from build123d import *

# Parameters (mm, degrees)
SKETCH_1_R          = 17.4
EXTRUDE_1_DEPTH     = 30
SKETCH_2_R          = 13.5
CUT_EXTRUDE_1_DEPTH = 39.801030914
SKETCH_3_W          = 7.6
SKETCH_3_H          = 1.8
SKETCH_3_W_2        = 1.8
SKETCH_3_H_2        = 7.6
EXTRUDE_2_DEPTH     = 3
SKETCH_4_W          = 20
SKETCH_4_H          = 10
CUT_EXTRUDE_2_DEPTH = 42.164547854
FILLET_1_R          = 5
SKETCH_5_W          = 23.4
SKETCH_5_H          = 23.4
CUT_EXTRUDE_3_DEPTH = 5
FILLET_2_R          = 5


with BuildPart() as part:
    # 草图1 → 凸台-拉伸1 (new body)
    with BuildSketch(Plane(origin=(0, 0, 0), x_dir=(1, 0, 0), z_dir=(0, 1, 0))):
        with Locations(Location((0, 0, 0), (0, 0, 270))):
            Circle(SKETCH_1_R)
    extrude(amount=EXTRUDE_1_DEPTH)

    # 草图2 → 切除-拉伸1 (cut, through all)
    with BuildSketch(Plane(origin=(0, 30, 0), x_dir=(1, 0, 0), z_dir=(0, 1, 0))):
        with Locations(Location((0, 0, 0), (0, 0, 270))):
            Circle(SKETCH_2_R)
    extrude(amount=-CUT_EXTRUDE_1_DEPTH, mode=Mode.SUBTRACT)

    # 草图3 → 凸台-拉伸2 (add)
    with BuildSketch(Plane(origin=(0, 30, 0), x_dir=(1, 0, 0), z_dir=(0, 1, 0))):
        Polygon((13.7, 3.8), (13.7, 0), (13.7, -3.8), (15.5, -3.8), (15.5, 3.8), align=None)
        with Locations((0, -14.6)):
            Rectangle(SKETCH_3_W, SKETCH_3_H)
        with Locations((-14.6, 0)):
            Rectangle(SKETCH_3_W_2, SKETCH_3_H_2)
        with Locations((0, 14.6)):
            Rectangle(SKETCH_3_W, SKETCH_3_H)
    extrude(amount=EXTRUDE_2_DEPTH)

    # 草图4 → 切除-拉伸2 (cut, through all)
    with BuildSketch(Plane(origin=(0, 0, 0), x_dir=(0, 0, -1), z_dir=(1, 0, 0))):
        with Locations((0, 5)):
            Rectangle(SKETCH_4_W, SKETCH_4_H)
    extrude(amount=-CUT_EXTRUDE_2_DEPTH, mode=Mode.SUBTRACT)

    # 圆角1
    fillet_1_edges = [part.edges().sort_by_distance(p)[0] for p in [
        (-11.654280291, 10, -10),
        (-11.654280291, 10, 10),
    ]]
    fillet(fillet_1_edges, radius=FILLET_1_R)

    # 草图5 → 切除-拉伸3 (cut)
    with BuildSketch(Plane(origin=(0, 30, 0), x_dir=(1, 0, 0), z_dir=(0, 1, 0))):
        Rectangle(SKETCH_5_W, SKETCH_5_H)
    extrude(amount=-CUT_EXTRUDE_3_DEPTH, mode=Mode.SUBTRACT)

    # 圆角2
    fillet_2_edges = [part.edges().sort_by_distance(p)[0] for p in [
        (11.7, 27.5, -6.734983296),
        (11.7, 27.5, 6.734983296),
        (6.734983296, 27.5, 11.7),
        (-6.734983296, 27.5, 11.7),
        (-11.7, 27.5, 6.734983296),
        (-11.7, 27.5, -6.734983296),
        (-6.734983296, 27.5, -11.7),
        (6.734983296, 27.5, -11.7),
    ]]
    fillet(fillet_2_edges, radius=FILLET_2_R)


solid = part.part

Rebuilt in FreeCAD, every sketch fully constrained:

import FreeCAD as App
import Part
import Sketcher

V = App.Vector


def edges_at(feature, points):
    """Names of the edges that pass closest to the given points."""
    edges = feature.Shape.Edges
    near = lambda p: min(range(len(edges)), key=lambda i: edges[i].distToShape(Part.Vertex(*p))[0])
    return sorted({f"Edge{near(p) + 1}" for p in points})

doc = App.newDocument("Part")
body = doc.addObject("PartDesign::Body", "Body")

sketch1 = body.newObject("Sketcher::SketchObject", "Sketch")
sketch1.AttachmentSupport = (doc.getObject("XZ_Plane"), [""])
sketch1.MapMode = "FlatFace"
sketch1.addGeometry(Part.Circle(V(0, 0, 0), V(0, 0, 1), 17), False)
sketch1.addConstraint([
    Sketcher.Constraint("Coincident", 0, 3, -1, 1),
    Sketcher.Constraint("Diameter", 0, 34.8),
])
pad1 = body.newObject("PartDesign::Pad", "Pad")
pad1.Profile = sketch1
pad1.Length = 30
pad1.Reversed = True

sketch2 = body.newObject("Sketcher::SketchObject", "Sketch001")
sketch2.AttachmentSupport = (doc.getObject("XZ_Plane"), [""])
sketch2.MapMode = "FlatFace"
sketch2.AttachmentOffset = App.Placement(V(0, 0, -30), App.Rotation())
sketch2.addGeometry(Part.Circle(V(0, 0, 0), V(0, 0, 1), 14), False)
sketch2.addConstraint([
    Sketcher.Constraint("Coincident", 0, 3, -1, 1),
    Sketcher.Constraint("Diameter", 0, 27.0),
])
pocket1 = body.newObject("PartDesign::Pocket", "Pocket")
pocket1.Profile = sketch2
pocket1.Type = "ThroughAll"
pocket1.Reversed = True

sketch3 = body.newObject("Sketcher::SketchObject", "Sketch002")
sketch3.AttachmentSupport = (doc.getObject("XZ_Plane"), [""])
sketch3.MapMode = "FlatFace"
sketch3.AttachmentOffset = App.Placement(V(0, 0, -30), App.Rotation())
sketch3.addGeometry([
    Part.LineSegment(V(13.7, -3.8, 0), V(13.7, 3.8, 0)),
    Part.LineSegment(V(13.7, 3.8, 0), V(15.5, 3.8, 0)),
    Part.LineSegment(V(15.5, 3.8, 0), V(15.5, -3.8, 0)),
    Part.LineSegment(V(15.5, -3.8, 0), V(13.7, -3.8, 0)),
    Part.LineSegment(V(-3.8, 13.7, 0), V(-3.8, 15.5, 0)),
    Part.LineSegment(V(-3.8, 15.5, 0), V(3.8, 15.5, 0)),
    Part.LineSegment(V(3.8, 15.5, 0), V(3.8, 13.7, 0)),
    Part.LineSegment(V(3.8, 13.7, 0), V(-3.8, 13.7, 0)),
    Part.LineSegment(V(-15.5, -3.8, 0), V(-15.5, 3.8, 0)),
    Part.LineSegment(V(-15.5, 3.8, 0), V(-13.7, 3.8, 0)),
    Part.LineSegment(V(-13.7, 3.8, 0), V(-13.7, -3.8, 0)),
    Part.LineSegment(V(-13.7, -3.8, 0), V(-15.5, -3.8, 0)),
    Part.LineSegment(V(-3.8, -15.5, 0), V(-3.8, -13.7, 0)),
    Part.LineSegment(V(-3.8, -13.7, 0), V(3.8, -13.7, 0)),
    Part.LineSegment(V(3.8, -13.7, 0), V(3.8, -15.5, 0)),
    Part.LineSegment(V(3.8, -15.5, 0), V(-3.8, -15.5, 0)),
], False)
sketch3.addConstraint([
    Sketcher.Constraint("Coincident", 0, 2, 1, 1),
    Sketcher.Constraint("Coincident", 1, 2, 2, 1),
    Sketcher.Constraint("Coincident", 2, 2, 3, 1),
    Sketcher.Constraint("Coincident", 3, 2, 0, 1),
    Sketcher.Constraint("Coincident", 4, 2, 5, 1),
    Sketcher.Constraint("Coincident", 5, 2, 6, 1),
    Sketcher.Constraint("Coincident", 6, 2, 7, 1),
    Sketcher.Constraint("Coincident", 7, 2, 4, 1),
    Sketcher.Constraint("Coincident", 8, 2, 9, 1),
    Sketcher.Constraint("Coincident", 9, 2, 10, 1),
    Sketcher.Constraint("Coincident", 10, 2, 11, 1),
    Sketcher.Constraint("Coincident", 11, 2, 8, 1),
    Sketcher.Constraint("Coincident", 12, 2, 13, 1),
    Sketcher.Constraint("Coincident", 13, 2, 14, 1),
    Sketcher.Constraint("Coincident", 14, 2, 15, 1),
    Sketcher.Constraint("Coincident", 15, 2, 12, 1),
    Sketcher.Constraint("Vertical", 0),
    Sketcher.Constraint("Horizontal", 1),
    Sketcher.Constraint("Vertical", 2),
    Sketcher.Constraint("Horizontal", 3),
    Sketcher.Constraint("Vertical", 4),
    Sketcher.Constraint("Horizontal", 5),
    Sketcher.Constraint("Vertical", 6),
    Sketcher.Constraint("Horizontal", 7),
    Sketcher.Constraint("Vertical", 8),
    Sketcher.Constraint("Horizontal", 9),
    Sketcher.Constraint("Vertical", 10),
    Sketcher.Constraint("Horizontal", 11),
    Sketcher.Constraint("Vertical", 12),
    Sketcher.Constraint("Horizontal", 13),
    Sketcher.Constraint("Vertical", 14),
    Sketcher.Constraint("Horizontal", 15),
    Sketcher.Constraint("Symmetric", 2, 2, 8, 2, -1, 1),
    Sketcher.Constraint("Symmetric", 0, 2, 10, 2, -1, 1),
    Sketcher.Constraint("Symmetric", 6, 2, 12, 2, -1, 1),
    Sketcher.Constraint("Symmetric", 4, 2, 14, 2, -1, 1),
    Sketcher.Constraint("Horizontal", 1, 2, 8, 2),
    Sketcher.Constraint("Vertical", 7, 2, 12, 2),
    Sketcher.Constraint("Equal", 15, 0),
    Sketcher.Constraint("Equal", 11, 4),
    Sketcher.Constraint("DistanceX", 1, 1, 1, 2, 1.8),
    Sketcher.Constraint("DistanceX", 5, 1, 5, 2, 7.6),
    Sketcher.Constraint("DistanceX", -1, 1, 0, 2, 13.7),
    Sketcher.Constraint("DistanceY", -1, 1, 4, 2, 15.5),
])
pad2 = body.newObject("PartDesign::Pad", "Pad001")
pad2.Profile = sketch3
pad2.Length = 3
pad2.Reversed = True

sketch4 = body.newObject("Sketcher::SketchObject", "Sketch003")
sketch4.AttachmentSupport = (doc.getObject("YZ_Plane"), [""])
sketch4.MapMode = "FlatFace"
sketch4.addGeometry([
    Part.LineSegment(V(10, 10, 0), V(0, 10, 0)),
    Part.LineSegment(V(0, 10, 0), V(0, -10, 0)),
    Part.LineSegment(V(0, -10, 0), V(10, -10, 0)),
    Part.LineSegment(V(10, -10, 0), V(10, 10, 0)),
], False)
sketch4.addConstraint([
    Sketcher.Constraint("Coincident", 0, 2, 1, 1),
    Sketcher.Constraint("Coincident", 1, 2, 2, 1),
    Sketcher.Constraint("Coincident", 2, 2, 3, 1),
    Sketcher.Constraint("Coincident", 3, 2, 0, 1),
    Sketcher.Constraint("Horizontal", 0),
    Sketcher.Constraint("Vertical", 1),
    Sketcher.Constraint("Horizontal", 2),
    Sketcher.Constraint("Vertical", 3),
    Sketcher.Constraint("Symmetric", 0, 2, 1, 2, -1, 1),
    Sketcher.Constraint("DistanceX", 0, 2, 0, 1, 10.0),
    Sketcher.Constraint("DistanceY", 1, 2, 1, 1, 20.0),
])
pocket2 = body.newObject("PartDesign::Pocket", "Pocket001")
pocket2.Profile = sketch4
pocket2.Type = "ThroughAll"
doc.recompute()

fillet = body.newObject("PartDesign::Fillet", "Fillet")
fillet.Base = (pocket2, edges_at(pocket2, [(-11.654, 10, -10), (-11.654, 10, 10)]))
fillet.Radius = 5

sketch5 = body.newObject("Sketcher::SketchObject", "Sketch004")
sketch5.AttachmentSupport = (doc.getObject("XZ_Plane"), [""])
sketch5.MapMode = "FlatFace"
sketch5.AttachmentOffset = App.Placement(V(0, 0, -30), App.Rotation())
sketch5.addGeometry([
    Part.LineSegment(V(-12, -12, 0), V(-12, 12, 0)),
    Part.LineSegment(V(-12, 12, 0), V(12, 12, 0)),
    Part.LineSegment(V(12, 12, 0), V(12, -12, 0)),
    Part.LineSegment(V(12, -12, 0), V(-12, -12, 0)),
], False)
sketch5.addConstraint([
    Sketcher.Constraint("Coincident", 0, 2, 1, 1),
    Sketcher.Constraint("Coincident", 1, 2, 2, 1),
    Sketcher.Constraint("Coincident", 2, 2, 3, 1),
    Sketcher.Constraint("Coincident", 3, 2, 0, 1),
    Sketcher.Constraint("Vertical", 0),
    Sketcher.Constraint("Horizontal", 1),
    Sketcher.Constraint("Vertical", 2),
    Sketcher.Constraint("Horizontal", 3),
    Sketcher.Constraint("Symmetric", 0, 2, 2, 2, -1, 1),
    Sketcher.Constraint("Equal", 3, 0),
    Sketcher.Constraint("DistanceX", 1, 1, 1, 2, 23.4),
])
pocket3 = body.newObject("PartDesign::Pocket", "Pocket002")
pocket3.Profile = sketch5
pocket3.Length = 5
pocket3.Reversed = True
doc.recompute()

fillet2 = body.newObject("PartDesign::Fillet", "Fillet001")
fillet2.Base = (pocket3, edges_at(pocket3, [
    (11.7, 27.5, -6.735),
    (11.7, 27.5, 6.735),
    (6.735, 27.5, 11.7),
    (-6.735, 27.5, 11.7),
    (-11.7, 27.5, 6.735),
    (-11.7, 27.5, -6.735),
    (-6.735, 27.5, -11.7),
    (6.735, 27.5, -11.7),
]))
fillet2.Radius = 5

doc.recompute()
